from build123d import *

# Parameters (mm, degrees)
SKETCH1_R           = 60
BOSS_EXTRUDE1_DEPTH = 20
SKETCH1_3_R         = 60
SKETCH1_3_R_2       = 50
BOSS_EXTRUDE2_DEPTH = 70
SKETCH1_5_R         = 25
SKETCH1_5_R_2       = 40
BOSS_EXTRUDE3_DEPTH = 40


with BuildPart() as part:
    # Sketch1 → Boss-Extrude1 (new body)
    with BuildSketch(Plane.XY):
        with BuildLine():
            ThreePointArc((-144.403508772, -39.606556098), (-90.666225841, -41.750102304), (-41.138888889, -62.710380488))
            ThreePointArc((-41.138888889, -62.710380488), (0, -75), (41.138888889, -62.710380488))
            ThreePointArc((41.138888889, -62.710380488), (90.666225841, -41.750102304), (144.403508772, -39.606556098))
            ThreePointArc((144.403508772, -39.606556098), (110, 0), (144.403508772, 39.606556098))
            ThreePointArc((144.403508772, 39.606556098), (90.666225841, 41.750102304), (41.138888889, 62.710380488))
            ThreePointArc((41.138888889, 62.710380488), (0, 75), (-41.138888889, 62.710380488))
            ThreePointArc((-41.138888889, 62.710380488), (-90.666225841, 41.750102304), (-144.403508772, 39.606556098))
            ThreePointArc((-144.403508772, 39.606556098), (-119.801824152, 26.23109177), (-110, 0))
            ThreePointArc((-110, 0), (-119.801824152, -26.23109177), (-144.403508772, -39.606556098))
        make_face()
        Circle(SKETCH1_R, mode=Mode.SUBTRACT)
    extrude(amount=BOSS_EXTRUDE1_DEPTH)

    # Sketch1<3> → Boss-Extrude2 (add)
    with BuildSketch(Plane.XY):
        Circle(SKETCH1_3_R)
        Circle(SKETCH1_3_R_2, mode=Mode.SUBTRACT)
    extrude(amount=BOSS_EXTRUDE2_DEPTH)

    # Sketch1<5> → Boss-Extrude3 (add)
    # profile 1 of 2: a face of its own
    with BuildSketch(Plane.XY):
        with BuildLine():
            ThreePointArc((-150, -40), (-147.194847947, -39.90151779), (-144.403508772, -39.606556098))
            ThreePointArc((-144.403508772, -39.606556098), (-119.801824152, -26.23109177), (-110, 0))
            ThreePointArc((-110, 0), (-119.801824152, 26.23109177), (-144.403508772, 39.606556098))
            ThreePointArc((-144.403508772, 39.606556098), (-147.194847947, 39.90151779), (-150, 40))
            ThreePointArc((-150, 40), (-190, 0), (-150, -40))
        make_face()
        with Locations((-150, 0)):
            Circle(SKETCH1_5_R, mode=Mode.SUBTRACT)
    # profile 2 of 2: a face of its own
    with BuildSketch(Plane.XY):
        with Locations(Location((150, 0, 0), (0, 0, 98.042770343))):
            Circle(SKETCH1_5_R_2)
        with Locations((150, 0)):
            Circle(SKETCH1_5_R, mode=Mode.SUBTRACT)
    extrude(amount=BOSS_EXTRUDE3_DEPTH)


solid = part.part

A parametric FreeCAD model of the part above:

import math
import FreeCAD as App
import Part
import Sketcher

V = App.Vector

doc = App.newDocument("Part")
body = doc.addObject("PartDesign::Body", "Body")

sketch1 = doc.addObject("Sketcher::SketchObject", "Sketch")
body.addObject(sketch1)
sketch1.AttachmentSupport = (doc.XY_Plane, [""])
sketch1.MapMode = "FlatFace"
sketch1.addGeometry(Part.ArcOfCircle(Part.Circle(V(-123.416667, -188.131141, 0), V(0, 0, 1), 150), math.radians(56.734564), math.radians(98.04277)), False)
sketch1.addGeometry(Part.ArcOfCircle(Part.Circle(V(0, 0, 0), V(0, 0, 1), 75), math.radians(-123.265436), math.radians(-56.734564)), False)
sketch1.addGeometry(Part.ArcOfCircle(Part.Circle(V(123.416667, -188.131141, 0), V(0, 0, 1), 150), math.radians(81.95723), math.radians(123.265436)), False)
sketch1.addGeometry(Part.ArcOfCircle(Part.Circle(V(150, 0, 0), V(0, 0, 1), 40), math.radians(98.04277), math.radians(261.95723)), False)
sketch1.addGeometry(Part.ArcOfCircle(Part.Circle(V(123.416667, 188.131141, 0), V(0, 0, 1), 150), math.radians(-123.265436), math.radians(-81.95723)), False)
sketch1.addGeometry(Part.ArcOfCircle(Part.Circle(V(0, 0, 0), V(0, 0, 1), 75), math.radians(56.734564), math.radians(123.265436)), False)
sketch1.addGeometry(Part.ArcOfCircle(Part.Circle(V(-123.416667, 188.131141, 0), V(0, 0, 1), 150), math.radians(-98.04277), math.radians(-56.734564)), False)
sketch1.addGeometry(Part.ArcOfCircle(Part.Circle(V(-150, 0, 0), V(0, 0, 1), 40), math.radians(0), math.radians(81.95723)), False)
sketch1.addGeometry(Part.ArcOfCircle(Part.Circle(V(-150, 0, 0), V(0, 0, 1), 40), math.radians(-81.95723), math.radians(0)), False)
sketch1.addGeometry(Part.Circle(V(0, 0, 0), V(0, 0, 1), 60), False)
sketch1.addConstraint(Sketcher.Constraint("Tangent", 0, 1, 1, 1))
sketch1.addConstraint(Sketcher.Constraint("Tangent", 1, 2, 2, 2))
sketch1.addConstraint(Sketcher.Constraint("Tangent", 2, 1, 3, 2))
sketch1.addConstraint(Sketcher.Constraint("Tangent", 3, 1, 4, 2))
sketch1.addConstraint(Sketcher.Constraint("Tangent", 4, 1, 5, 1))
sketch1.addConstraint(Sketcher.Constraint("Tangent", 5, 2, 6, 2))
sketch1.addConstraint(Sketcher.Constraint("Tangent", 6, 1, 7, 2))
sketch1.addConstraint(Sketcher.Constraint("Tangent", 7, 1, 8, 2))
sketch1.addConstraint(Sketcher.Constraint("Tangent", 8, 1, 0, 2))
sketch1.addConstraint(Sketcher.Constraint("Coincident", 1, 3, -1, 1))
sketch1.addConstraint(Sketcher.Constraint("Coincident", 5, 3, -1, 1))
sketch1.addConstraint(Sketcher.Constraint("Coincident", 9, 3, -1, 1))
sketch1.addConstraint(Sketcher.Constraint("Equal", 0, 2))
sketch1.addConstraint(Sketcher.Constraint("Equal", 2, 4))
sketch1.addConstraint(Sketcher.Constraint("Equal", 1, 5))
sketch1.addConstraint(Sketcher.Constraint("Equal", 4, 6))
sketch1.addConstraint(Sketcher.Constraint("Equal", 3, 7))
sketch1.addConstraint(Sketcher.Constraint("Equal", 7, 8))
sketch1.addConstraint(Sketcher.Constraint("Symmetric", 3, 3, 7, 3, -1, 1))
sketch1.addConstraint(Sketcher.Constraint("PointOnObject", 3, 3, -1))
sketch1.addConstraint(Sketcher.Constraint("PointOnObject", 7, 1, -1))
sketch1.addConstraint(Sketcher.Constraint("Diameter", 9, 120.0))
sketch1.addConstraint(Sketcher.Constraint("Radius", 0, 150.0))
sketch1.addConstraint(Sketcher.Constraint("Radius", 1, 75.0))
sketch1.addConstraint(Sketcher.Constraint("Radius", 3, 40.0))
sketch1.addConstraint(Sketcher.Constraint("DistanceX", -1, 1, 3, 3, 150.0))
pad1 = doc.addObject("PartDesign::Pad", "Pad")
body.addObject(pad1)
pad1.Profile = sketch1
pad1.Length = 20

sketch2 = doc.addObject("Sketcher::SketchObject", "Sketch001")
body.addObject(sketch2)
sketch2.AttachmentSupport = (doc.XY_Plane, [""])
sketch2.MapMode = "FlatFace"
sketch2.addGeometry(Part.Circle(V(0, 0, 0), V(0, 0, 1), 60), False)
sketch2.addGeometry(Part.Circle(V(0, 0, 0), V(0, 0, 1), 50), False)
sketch2.addConstraint(Sketcher.Constraint("Coincident", 0, 3, -1, 1))
sketch2.addConstraint(Sketcher.Constraint("Coincident", 1, 3, -1, 1))
sketch2.addConstraint(Sketcher.Constraint("Diameter", 0, 120.0))
sketch2.addConstraint(Sketcher.Constraint("Diameter", 1, 100.0))
pad2 = doc.addObject("PartDesign::Pad", "Pad001")
body.addObject(pad2)
pad2.Profile = sketch2
pad2.Length = 70

sketch3 = doc.addObject("Sketcher::SketchObject", "Sketch002")
body.addObject(sketch3)
sketch3.AttachmentSupport = (doc.XY_Plane, [""])
sketch3.MapMode = "FlatFace"
sketch3.addGeometry(Part.ArcOfCircle(Part.Circle(V(-150, 0, 0), V(0, 0, 1), 40), math.radians(-90), math.radians(-81.95723)), False)
sketch3.addGeometry(Part.ArcOfCircle(Part.Circle(V(-150, 0, 0), V(0, 0, 1), 40), math.radians(-81.95723), math.radians(0)), False)
sketch3.addGeometry(Part.ArcOfCircle(Part.Circle(V(-150, 0, 0), V(0, 0, 1), 40), math.radians(0), math.radians(81.95723)), False)
sketch3.addGeometry(Part.ArcOfCircle(Part.Circle(V(-150, 0, 0), V(0, 0, 1), 40), math.radians(81.95723), math.radians(90)), False)
sketch3.addGeometry(Part.ArcOfCircle(Part.Circle(V(-150, 0, 0), V(0, 0, 1), 40), math.radians(90), math.radians(270)), False)
sketch3.addGeometry(Part.Circle(V(-150, 0, 0), V(0, 0, 1), 25), False)
sketch3.addGeometry(Part.Circle(V(150, 0, 0), V(0, 0, 1), 40), False)
sketch3.addGeometry(Part.Circle(V(150, 0, 0), V(0, 0, 1), 25), False)
sketch3.addConstraint(Sketcher.Constraint("Tangent", 0, 2, 1, 1))
sketch3.addConstraint(Sketcher.Constraint("Tangent", 1, 2, 2, 1))
sketch3.addConstraint(Sketcher.Constraint("Tangent", 2, 2, 3, 1))
sketch3.addConstraint(Sketcher.Constraint("Tangent", 3, 2, 4, 1))
sketch3.addConstraint(Sketcher.Constraint("Tangent", 4, 2, 0, 1))
sketch3.addConstraint(Sketcher.Constraint("Coincident", 2, 3, 0, 3))
sketch3.addConstraint(Sketcher.Constraint("Coincident", 5, 3, 0, 3))
sketch3.addConstraint(Sketcher.Constraint("Coincident", 7, 3, 6, 3))
sketch3.addConstraint(Sketcher.Constraint("Equal", 4, 6))
sketch3.addConstraint(Sketcher.Constraint("Equal", 5, 7))
sketch3.addConstraint(Sketcher.Constraint("Symmetric", 0, 3, 6, 3, -1, 1))
sketch3.addConstraint(Sketcher.Constraint("Symmetric", 0, 2, 2, 2, -1))
sketch3.addConstraint(Sketcher.Constraint("PointOnObject", 1, 2, -1))
sketch3.addConstraint(Sketcher.Constraint("Vertical", 5, 3, 3, 2))
sketch3.addConstraint(Sketcher.Constraint("Vertical", 3, 2, 4, 2))
sketch3.addConstraint(Sketcher.Constraint("Diameter", 5, 50.0))
sketch3.addConstraint(Sketcher.Constraint("Diameter", 6, 80.0))
sketch3.addConstraint(Sketcher.Constraint("DistanceX", 0, 3, -1, 1, 150.0))
sketch3.addConstraint(Sketcher.Constraint("DistanceX", 0, 2, -1, 1, 144.403509))
pad3 = doc.addObject("PartDesign::Pad", "Pad002")
body.addObject(pad3)
pad3.Profile = sketch3
pad3.Length = 40

doc.recompute()
